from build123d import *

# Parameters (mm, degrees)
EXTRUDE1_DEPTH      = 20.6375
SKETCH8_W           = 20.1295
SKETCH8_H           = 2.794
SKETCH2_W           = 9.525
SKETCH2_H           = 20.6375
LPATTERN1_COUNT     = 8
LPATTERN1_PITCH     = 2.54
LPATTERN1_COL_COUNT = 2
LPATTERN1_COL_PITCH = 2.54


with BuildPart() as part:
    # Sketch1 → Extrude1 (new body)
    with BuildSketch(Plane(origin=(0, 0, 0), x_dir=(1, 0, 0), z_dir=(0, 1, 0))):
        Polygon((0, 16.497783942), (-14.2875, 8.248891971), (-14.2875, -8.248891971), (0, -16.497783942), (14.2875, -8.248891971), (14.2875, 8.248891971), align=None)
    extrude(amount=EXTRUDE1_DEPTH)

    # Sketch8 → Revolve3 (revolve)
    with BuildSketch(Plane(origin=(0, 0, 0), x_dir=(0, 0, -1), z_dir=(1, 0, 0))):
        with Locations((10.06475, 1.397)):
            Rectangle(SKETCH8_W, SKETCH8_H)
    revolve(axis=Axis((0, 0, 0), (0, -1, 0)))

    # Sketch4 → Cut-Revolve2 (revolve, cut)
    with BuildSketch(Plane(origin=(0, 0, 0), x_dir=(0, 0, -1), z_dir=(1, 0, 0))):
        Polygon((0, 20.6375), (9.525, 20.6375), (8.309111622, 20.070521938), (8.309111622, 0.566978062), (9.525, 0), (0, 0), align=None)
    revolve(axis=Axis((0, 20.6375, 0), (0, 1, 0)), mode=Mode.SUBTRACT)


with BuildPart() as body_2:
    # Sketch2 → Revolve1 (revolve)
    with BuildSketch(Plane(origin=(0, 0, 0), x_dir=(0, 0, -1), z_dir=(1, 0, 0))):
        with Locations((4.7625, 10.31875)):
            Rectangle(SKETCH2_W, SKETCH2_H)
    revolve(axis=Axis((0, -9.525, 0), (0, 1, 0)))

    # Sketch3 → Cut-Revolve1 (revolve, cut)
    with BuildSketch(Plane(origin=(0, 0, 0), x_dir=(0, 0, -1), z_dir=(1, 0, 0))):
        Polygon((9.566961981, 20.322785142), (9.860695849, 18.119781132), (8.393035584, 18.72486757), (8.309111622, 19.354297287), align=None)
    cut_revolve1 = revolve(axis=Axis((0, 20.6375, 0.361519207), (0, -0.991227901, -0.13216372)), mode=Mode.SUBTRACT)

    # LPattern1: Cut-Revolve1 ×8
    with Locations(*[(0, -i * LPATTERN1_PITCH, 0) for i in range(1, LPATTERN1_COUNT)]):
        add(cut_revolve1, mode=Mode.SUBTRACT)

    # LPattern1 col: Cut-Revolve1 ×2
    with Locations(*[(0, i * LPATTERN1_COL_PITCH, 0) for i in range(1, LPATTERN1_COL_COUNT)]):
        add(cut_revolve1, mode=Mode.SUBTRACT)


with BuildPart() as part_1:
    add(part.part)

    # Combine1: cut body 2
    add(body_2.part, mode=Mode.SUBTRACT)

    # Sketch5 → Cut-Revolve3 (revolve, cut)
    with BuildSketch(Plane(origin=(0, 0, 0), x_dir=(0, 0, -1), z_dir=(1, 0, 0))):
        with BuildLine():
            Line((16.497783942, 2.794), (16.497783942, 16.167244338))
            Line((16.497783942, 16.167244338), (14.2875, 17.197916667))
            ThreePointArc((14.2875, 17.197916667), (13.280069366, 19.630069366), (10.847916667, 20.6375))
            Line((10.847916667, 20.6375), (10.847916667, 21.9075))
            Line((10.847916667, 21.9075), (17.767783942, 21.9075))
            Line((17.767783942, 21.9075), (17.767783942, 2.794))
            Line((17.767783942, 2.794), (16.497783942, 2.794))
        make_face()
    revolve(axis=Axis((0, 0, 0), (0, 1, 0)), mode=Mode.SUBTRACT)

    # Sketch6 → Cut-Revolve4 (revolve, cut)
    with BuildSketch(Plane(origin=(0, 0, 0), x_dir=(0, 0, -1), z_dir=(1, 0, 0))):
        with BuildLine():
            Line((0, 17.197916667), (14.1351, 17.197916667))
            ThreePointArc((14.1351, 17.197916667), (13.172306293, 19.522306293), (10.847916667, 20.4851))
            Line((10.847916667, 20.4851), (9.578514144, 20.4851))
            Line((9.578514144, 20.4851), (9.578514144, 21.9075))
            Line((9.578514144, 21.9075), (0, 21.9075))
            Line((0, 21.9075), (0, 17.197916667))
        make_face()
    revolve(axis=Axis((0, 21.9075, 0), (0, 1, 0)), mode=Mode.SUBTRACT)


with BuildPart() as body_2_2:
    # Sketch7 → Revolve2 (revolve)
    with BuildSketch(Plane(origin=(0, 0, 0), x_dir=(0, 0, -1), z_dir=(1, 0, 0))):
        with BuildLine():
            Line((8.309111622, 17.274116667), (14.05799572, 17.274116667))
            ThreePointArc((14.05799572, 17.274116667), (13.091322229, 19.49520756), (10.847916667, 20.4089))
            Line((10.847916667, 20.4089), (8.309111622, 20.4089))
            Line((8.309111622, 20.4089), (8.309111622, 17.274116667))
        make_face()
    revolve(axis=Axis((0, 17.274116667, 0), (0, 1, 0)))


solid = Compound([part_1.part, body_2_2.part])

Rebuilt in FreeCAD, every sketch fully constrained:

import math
import FreeCAD as App
import Part
import Sketcher
from FreeCAD import Vector
Q = App.Units.Quantity


def add_polygon(sketch, points):
    """Adds a closed chain of lines whose ends are joined by coincident constraints."""
    first, n = sketch.GeometryCount, len(points)
    for a, b in zip(points, points[1:] + points[:1]):
        sketch.addGeometry(Part.LineSegment(App.Vector(*a, 0), App.Vector(*b, 0)), False)
    for i in range(n):
        sketch.addConstraint(Sketcher.Constraint("Coincident", first + i, 2, first + (i + 1) % n, 1))

doc = App.newDocument("Part")
params = doc.addObject("Spreadsheet::Sheet", "Params")
for row, (alias, value) in enumerate([
    ("pad1_length", "0.8125 in"),
    ("sketch2_width", "0.11 in"),
    ("revolution_angle", "360 deg"),
    ("sketch3_width", "0.8125 in"),
    ("sketch3_height", "0.375 in"),
    ("groove_angle", "360 deg"),
    ("sketch4_width", "0.8125 in"),
    ("sketch4_height", "0.375 in"),
    ("revolution2_angle", "360 deg"),
    ("sketch5_length", "0.0625 in"),
    ("sketch5_length2", "0.025 in"),
    ("groove2_angle", "360 deg"),
    ("linearpattern_pitch", "0.1 in"),
    ("linearpattern2_pitch", "0.1 in"),
    ("sketch6_width", "0.05 in"),
    ("groove3_angle", "360 deg"),
    ("sketch7_width", "0.056 in"),
    ("groove4_angle", "360 deg"),
    ("revolution3_angle", "360 deg"),
], start=1):
    params.set(f"A{row}", alias)
    params.set(f"B{row}", "=" + value)
    params.setAlias(f"B{row}", alias)

body = doc.addObject("PartDesign::Body", "Body")

sketch1 = body.newObject("Sketcher::SketchObject", "Sketch")
sketch1.AttachmentSupport = (doc.getObject("XZ_Plane"), [""])
sketch1.MapMode = "FlatFace"
add_polygon(sketch1, [(0, -16.497784), (-14.2875, -8.248892), (-14.2875, 8.248892), (0, 16.497784), (14.2875, 8.248892), (14.2875, -8.248892)])
sketch1.addConstraint(Sketcher.Constraint("Vertical", 1))
sketch1.addConstraint(Sketcher.Constraint("Vertical", 4))
sketch1.addConstraint(Sketcher.Constraint("Symmetric", 0, 2, 3, 2, -1, 1))
sketch1.addConstraint(Sketcher.Constraint("Symmetric", 2, 2, 5, 2, -1, 1))
sketch1.addConstraint(Sketcher.Constraint("PointOnObject", 2, 2, -2))
sketch1.addConstraint(Sketcher.Constraint("Parallel", 2, 5))
sketch1.addConstraint(Sketcher.Constraint("Horizontal", 1, 2, 3, 2))
sketch1.addConstraint(Sketcher.Constraint("Angle", 0, Q("150 deg")))
sketch1.addConstraint(Sketcher.Constraint("DistanceX", 0, 2, -1, 1, Q("0.5625 in")))
sketch1.addConstraint(Sketcher.Constraint("DistanceY", 1, 1, 1, 2, Q("16.497784 mm")))
pad1 = body.newObject("PartDesign::Pad", "Pad")
pad1.Profile = sketch1
pad1.setExpression("Length", "Params.pad1_length")
pad1.Reversed = True

sketch2 = body.newObject("Sketcher::SketchObject", "Sketch001")
sketch2.AttachmentSupport = (doc.getObject("YZ_Plane"), [""])
sketch2.MapMode = "FlatFace"
add_polygon(sketch2, [(2.794, 0), (0, 0), (0, -20.1295), (2.794, -20.1295)])
sketch2.addConstraint(Sketcher.Constraint("Horizontal", 0))
sketch2.addConstraint(Sketcher.Constraint("Vertical", 1))
sketch2.addConstraint(Sketcher.Constraint("Horizontal", 2))
sketch2.addConstraint(Sketcher.Constraint("Vertical", 3))
sketch2.addConstraint(Sketcher.Constraint("Coincident", 0, 2, -1, 1))
sketch2.addConstraint(Sketcher.Constraint("DistanceX", 0, 2, 0, 1, Q("0.11 in")))
sketch2.addConstraint(Sketcher.Constraint("DistanceY", 1, 2, 1, 1, Q("0.7925 in")))
sketch2.setExpression("Constraints[9]", "Params.sketch2_width")
revolution = body.newObject("PartDesign::Revolution", "Revolution")
revolution.Profile = sketch2
revolution.ReferenceAxis = (sketch2, ["H_Axis"])
revolution.setExpression("Angle", "Params.revolution_angle")

sketch3 = body.newObject("Sketcher::SketchObject", "Sketch002")
sketch3.AttachmentSupport = (doc.getObject("YZ_Plane"), [""])
sketch3.MapMode = "FlatFace"
add_polygon(sketch3, [(20.6375, -9.525), (20.6375, 0), (0, 0), (0, -9.525), (0.566978, -8.309112), (20.070522, -8.309112)])
sketch3.addConstraint(Sketcher.Constraint("Vertical", 0))
sketch3.addConstraint(Sketcher.Constraint("Horizontal", 1))
sketch3.addConstraint(Sketcher.Constraint("Vertical", 2))
sketch3.addConstraint(Sketcher.Constraint("Horizontal", 4))
sketch3.addConstraint(Sketcher.Constraint("Coincident", 1, 2, -1, 1))
sketch3.addConstraint(Sketcher.Constraint("Horizontal", 2, 2, 5, 2))
sketch3.addConstraint(Sketcher.Constraint("Equal", 3, 5))
sketch3.addConstraint(Sketcher.Constraint("Angle", 3, Q("65 deg")))
sketch3.addConstraint(Sketcher.Constraint("DistanceX", 1, 2, 1, 1, Q("0.8125 in")))
sketch3.addConstraint(Sketcher.Constraint("DistanceY", 0, 1, 0, 2, Q("0.375 in")))
sketch3.addConstraint(Sketcher.Constraint("DistanceX", 4, 1, 4, 2, Q("19.503544 mm")))
sketch3.setExpression("Constraints[14]", "Params.sketch3_width")
sketch3.setExpression("Constraints[15]", "Params.sketch3_height")
groove = body.newObject("PartDesign::Groove", "Groove")
groove.Profile = sketch3
groove.ReferenceAxis = (sketch3, ["H_Axis"])
groove.setExpression("Angle", "Params.groove_angle")
body2 = doc.addObject("PartDesign::Body", "Body001")

sketch4 = body2.newObject("Sketcher::SketchObject", "Sketch003")
sketch4.AttachmentSupport = (doc.getObject("YZ_Plane001"), [""])
sketch4.MapMode = "FlatFace"
add_polygon(sketch4, [(20.6375, 0), (0, 0), (0, -9.525), (20.6375, -9.525)])
sketch4.addConstraint(Sketcher.Constraint("Horizontal", 0))
sketch4.addConstraint(Sketcher.Constraint("Vertical", 1))
sketch4.addConstraint(Sketcher.Constraint("Horizontal", 2))
sketch4.addConstraint(Sketcher.Constraint("Vertical", 3))
sketch4.addConstraint(Sketcher.Constraint("Coincident", 0, 2, -1, 1))
sketch4.addConstraint(Sketcher.Constraint("DistanceX", 0, 2, 0, 1, Q("0.8125 in")))
sketch4.addConstraint(Sketcher.Constraint("DistanceY", 1, 2, 1, 1, Q("0.375 in")))
sketch4.setExpression("Constraints[9]", "Params.sketch4_width")
sketch4.setExpression("Constraints[10]", "Params.sketch4_height")
revolution2 = body2.newObject("PartDesign::Revolution", "Revolution001")
revolution2.Profile = sketch4
revolution2.ReferenceAxis = (sketch4, ["H_Axis"])
revolution2.setExpression("Angle", "Params.revolution2_angle")

sketch5 = body2.newObject("Sketcher::SketchObject", "Sketch004")
sketch5.AttachmentSupport = (doc.getObject("YZ_Plane001"), [""])
sketch5.MapMode = "FlatFace"
add_polygon(sketch5, [(18.119781, -9.860696), (20.322785, -9.566962), (19.354297, -8.309112), (18.724868, -8.393036)])
sketch5.addGeometry(Part.LineSegment(Vector(19.027608, 0.146867, 0), Vector(16.824604, -0.146867, 0)), True)
sketch5.addConstraint(Sketcher.Constraint("Parallel", 0, 2))
sketch5.addConstraint(Sketcher.Constraint("Parallel", 2, 4))
sketch5.addConstraint(Sketcher.Constraint("Equal", 1, 3))
sketch5.addConstraint(Sketcher.Constraint("Equal", 0, 4))
sketch5.addConstraint(Sketcher.Constraint("Distance", 1, Q("0.0625 in")))
sketch5.addConstraint(Sketcher.Constraint("Distance", 2, Q("0.025 in")))
sketch5.addConstraint(Sketcher.Constraint("Distance", 0, Q("0.0875 in")))
sketch5.addConstraint(Sketcher.Constraint("DistanceY", 0, 2, -1, 1, Q("9.566962 mm")))
sketch5.addConstraint(Sketcher.Constraint("DistanceY", 1, 2, -1, 1, Q("8.309112 mm")))
sketch5.addConstraint(Sketcher.Constraint("DistanceX", -1, 1, 3, 2, Q("18.119781 mm")))
sketch5.addConstraint(Sketcher.Constraint("DistanceX", 4, 1, 1, 2, Q("0.326689 mm")))
sketch5.addConstraint(Sketcher.Constraint("DistanceY", 1, 2, 4, 1, Q("8.455979 mm")))
sketch5.setExpression("Constraints[8]", "Params.sketch5_length")
sketch5.setExpression("Constraints[9]", "Params.sketch5_length2")
groove2 = body2.newObject("PartDesign::Groove", "Groove001")
groove2.Profile = sketch5
groove2.ReferenceAxis = (sketch5, ["Axis0"])
groove2.setExpression("Angle", "Params.groove2_angle")
doc.recompute()

linearpattern = body2.newObject("PartDesign::LinearPattern", "LinearPattern")
linearpattern.Originals = [groove2]
linearpattern.Direction = (doc.getObject("Y_Axis001"), [""])
linearpattern.Mode = "offset"
linearpattern.setExpression("Offset", "Params.linearpattern_pitch")
linearpattern.Occurrences = 8
linearpattern.Reversed = True
body2.Tip = linearpattern
doc.recompute()

linearpattern2 = body2.newObject("PartDesign::LinearPattern", "LinearPattern001")
linearpattern2.Originals = [groove2]
linearpattern2.Direction = (doc.getObject("Y_Axis001"), [""])
linearpattern2.Mode = "offset"
linearpattern2.setExpression("Offset", "Params.linearpattern2_pitch")
linearpattern2.Occurrences = 2
body2.Tip = linearpattern2
doc.recompute()

boolean = body.newObject("PartDesign::Boolean", "Boolean")
boolean.Type = "Cut"
boolean.addObjects([body2])

sketch6 = body.newObject("Sketcher::SketchObject", "Sketch005")
sketch6.AttachmentSupport = (doc.getObject("YZ_Plane"), [""])
sketch6.MapMode = "FlatFace"
sketch6.addGeometry(Part.LineSegment(Vector(16.167244, -16.497784, 0), Vector(2.794, -16.497784, 0)), False)
sketch6.addGeometry(Part.LineSegment(Vector(2.794, -16.497784, 0), Vector(2.794, -17.767784, 0)), False)
sketch6.addGeometry(Part.LineSegment(Vector(2.794, -17.767784, 0), Vector(21.9075, -17.767784, 0)), False)
sketch6.addGeometry(Part.LineSegment(Vector(21.9075, -17.767784, 0), Vector(21.9075, -10.847917, 0)), False)
sketch6.addGeometry(Part.LineSegment(Vector(21.9075, -10.847917, 0), Vector(20.6375, -10.847917, 0)), False)
sketch6.addGeometry(Part.ArcOfCircle(Part.Circle(Vector(17.197917, -10.847917, 0), Vector(0, 0, 1), 3.439583), math.radians(-90), math.radians(0)), False)
sketch6.addGeometry(Part.LineSegment(Vector(17.197917, -14.2875, 0), Vector(16.167244, -16.497784, 0)), False)
sketch6.addConstraint(Sketcher.Constraint("Coincident", 0, 2, 1, 1))
sketch6.addConstraint(Sketcher.Constraint("Coincident", 1, 2, 2, 1))
sketch6.addConstraint(Sketcher.Constraint("Coincident", 2, 2, 3, 1))
sketch6.addConstraint(Sketcher.Constraint("Coincident", 3, 2, 4, 1))
sketch6.addConstraint(Sketcher.Constraint("Coincident", 4, 2, 5, 2))
sketch6.addConstraint(Sketcher.Constraint("Coincident", 5, 1, 6, 1))
sketch6.addConstraint(Sketcher.Constraint("Coincident", 6, 2, 0, 1))
sketch6.addConstraint(Sketcher.Constraint("Horizontal", 0))
sketch6.addConstraint(Sketcher.Constraint("Vertical", 1))
sketch6.addConstraint(Sketcher.Constraint("Horizontal", 2))
sketch6.addConstraint(Sketcher.Constraint("Vertical", 3))
sketch6.addConstraint(Sketcher.Constraint("Horizontal", 4))
sketch6.addConstraint(Sketcher.Constraint("Horizontal", 5, 3, 3, 2))
sketch6.addConstraint(Sketcher.Constraint("Equal", 4, 1))
sketch6.addConstraint(Sketcher.Constraint("Angle", 6, Q("-115 deg")))
sketch6.addConstraint(Sketcher.Constraint("DistanceX", 4, 2, 4, 1, Q("0.05 in")))
sketch6.addConstraint(Sketcher.Constraint("DistanceX", -1, 1, 0, 2, Q("0.11 in")))
sketch6.addConstraint(Sketcher.Constraint("DistanceX", 2, 1, 2, 2, Q("0.7525 in")))
sketch6.addConstraint(Sketcher.Constraint("DistanceY", 5, 1, -1, 1, Q("0.5625 in")))
sketch6.addConstraint(Sketcher.Constraint("Radius", 5, Q("3.439583 mm")))
sketch6.addConstraint(Sketcher.Constraint("Distance", 6, Q("2.438778 mm")))
sketch6.addConstraint(Sketcher.Constraint("DistanceX", 0, 2, 0, 1, Q("13.373244 mm")))
sketch6.setExpression("Constraints[15]", "Params.sketch6_width")
groove3 = body.newObject("PartDesign::Groove", "Groove002")
groove3.Profile = sketch6
groove3.ReferenceAxis = (sketch6, ["H_Axis"])
groove3.setExpression("Angle", "Params.groove3_angle")

sketch7 = body.newObject("Sketcher::SketchObject", "Sketch006")
sketch7.AttachmentSupport = (doc.getObject("YZ_Plane"), [""])
sketch7.MapMode = "FlatFace"
sketch7.addGeometry(Part.LineSegment(Vector(17.197917, 0, 0), Vector(17.197917, -14.1351, 0)), False)
sketch7.addGeometry(Part.ArcOfCircle(Part.Circle(Vector(17.197917, -10.847917, 0), Vector(0, 0, 1), 3.287183), math.radians(-90), math.radians(0)), False)
sketch7.addGeometry(Part.LineSegment(Vector(20.4851, -10.847917, 0), Vector(20.4851, -9.578514, 0)), False)
sketch7.addGeometry(Part.LineSegment(Vector(20.4851, -9.578514, 0), Vector(21.9075, -9.578514, 0)), False)
sketch7.addGeometry(Part.LineSegment(Vector(21.9075, -9.578514, 0), Vector(21.9075, 0, 0)), False)
sketch7.addGeometry(Part.LineSegment(Vector(21.9075, 0, 0), Vector(17.197917, 0, 0)), False)
sketch7.addConstraint(Sketcher.Constraint("Coincident", 0, 2, 1, 1))
sketch7.addConstraint(Sketcher.Constraint("Tangent", 1, 2, 2, 1))
sketch7.addConstraint(Sketcher.Constraint("Coincident", 2, 2, 3, 1))
sketch7.addConstraint(Sketcher.Constraint("Coincident", 3, 2, 4, 1))
sketch7.addConstraint(Sketcher.Constraint("Coincident", 4, 2, 5, 1))
sketch7.addConstraint(Sketcher.Constraint("Coincident", 5, 2, 0, 1))
sketch7.addConstraint(Sketcher.Constraint("Vertical", 0))
sketch7.addConstraint(Sketcher.Constraint("Vertical", 2))
sketch7.addConstraint(Sketcher.Constraint("Horizontal", 3))
sketch7.addConstraint(Sketcher.Constraint("Vertical", 4))
sketch7.addConstraint(Sketcher.Constraint("Horizontal", 5))
sketch7.addConstraint(Sketcher.Constraint("PointOnObject", 4, 2, -1))
sketch7.addConstraint(Sketcher.Constraint("Vertical", 1, 3, 0, 2))
sketch7.addConstraint(Sketcher.Constraint("DistanceX", 3, 1, 3, 2, Q("0.056 in")))
sketch7.addConstraint(Sketcher.Constraint("DistanceY", 0, 2, 0, 1, Q("0.5565 in")))
sketch7.addConstraint(Sketcher.Constraint("DistanceX", -1, 1, 1, 2, Q("0.8065 in")))
sketch7.addConstraint(Sketcher.Constraint("Radius", 1, Q("3.287183 mm")))
sketch7.addConstraint(Sketcher.Constraint("DistanceY", 2, 1, 2, 2, Q("1.269403 mm")))
sketch7.setExpression("Constraints[13]", "Params.sketch7_width")
groove4 = body.newObject("PartDesign::Groove", "Groove003")
groove4.Profile = sketch7
groove4.ReferenceAxis = (sketch7, ["H_Axis"])
groove4.setExpression("Angle", "Params.groove4_angle")
body3 = doc.addObject("PartDesign::Body", "Body002")

sketch8 = body3.newObject("Sketcher::SketchObject", "Sketch007")
sketch8.AttachmentSupport = (doc.getObject("YZ_Plane002"), [""])
sketch8.MapMode = "FlatFace"
sketch8.addGeometry(Part.LineSegment(Vector(17.274117, -8.309112, 0), Vector(17.274117, -14.057996, 0)), False)
sketch8.addGeometry(Part.ArcOfCircle(Part.Circle(Vector(17.197917, -10.847917, 0), Vector(0, 0, 1), 3.210983), math.radians(-88.640183), math.radians(0)), False)
sketch8.addGeometry(Part.LineSegment(Vector(20.4089, -10.847917, 0), Vector(20.4089, -8.309112, 0)), False)
sketch8.addGeometry(Part.LineSegment(Vector(20.4089, -8.309112, 0), Vector(17.274117, -8.309112, 0)), False)
sketch8.addConstraint(Sketcher.Constraint("Coincident", 0, 2, 1, 1))
sketch8.addConstraint(Sketcher.Constraint("Tangent", 1, 2, 2, 1))
sketch8.addConstraint(Sketcher.Constraint("Coincident", 2, 2, 3, 1))
sketch8.addConstraint(Sketcher.Constraint("Coincident", 3, 2, 0, 1))
sketch8.addConstraint(Sketcher.Constraint("Vertical", 0))
sketch8.addConstraint(Sketcher.Constraint("Vertical", 2))
sketch8.addConstraint(Sketcher.Constraint("Horizontal", 3))
sketch8.addConstraint(Sketcher.Constraint("DistanceX", 1, 3, 0, 2, Q("0.003 in")))
sketch8.addConstraint(Sketcher.Constraint("DistanceX", -1, 1, 1, 2, Q("0.8035 in")))
sketch8.addConstraint(Sketcher.Constraint("Radius", 1, Q("3.210983 mm")))
sketch8.addConstraint(Sketcher.Constraint("DistanceY", 0, 2, 0, 1, Q("5.748884 mm")))
sketch8.addConstraint(Sketcher.Constraint("DistanceY", 2, 2, -1, 1, Q("8.309112 mm")))
revolution3 = body3.newObject("PartDesign::Revolution", "Revolution002")
revolution3.Profile = sketch8
revolution3.ReferenceAxis = (sketch8, ["H_Axis"])
revolution3.setExpression("Angle", "Params.revolution3_angle")

doc.recompute()
